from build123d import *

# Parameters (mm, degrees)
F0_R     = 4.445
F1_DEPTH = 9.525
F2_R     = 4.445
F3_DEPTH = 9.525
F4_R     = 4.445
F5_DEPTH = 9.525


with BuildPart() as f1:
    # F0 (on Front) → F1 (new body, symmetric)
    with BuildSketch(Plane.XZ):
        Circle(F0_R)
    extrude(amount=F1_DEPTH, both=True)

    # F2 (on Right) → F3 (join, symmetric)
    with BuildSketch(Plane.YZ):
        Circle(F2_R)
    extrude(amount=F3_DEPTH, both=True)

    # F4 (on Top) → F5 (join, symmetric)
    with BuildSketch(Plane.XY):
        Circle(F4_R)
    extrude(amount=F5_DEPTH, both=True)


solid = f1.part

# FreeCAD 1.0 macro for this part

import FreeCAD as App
import Part
import Sketcher
from FreeCAD import Vector
Q = App.Units.Quantity

doc = App.newDocument("Part")
body = doc.addObject("PartDesign::Body", "Body")

# Sketch on XZ plane
sketch1 = body.newObject("Sketcher::SketchObject", "Sketch")
sketch1.AttachmentSupport = (doc.getObject("XZ_Plane"), [""])
sketch1.MapMode = "FlatFace"
sketch1.addGeometry(Part.Circle(Vector(0, 0, 0), Vector(0, 0, 1), 4.4), False)
sketch1.addConstraint([
    Sketcher.Constraint("Coincident", 0, 3, -1, 1),
    Sketcher.Constraint("Diameter", 0, Q("0.35 in")),
])
pad1 = body.newObject("PartDesign::Pad", "Pad")
pad1.Profile = sketch1
pad1.Length = Q("0.75 in")
pad1.Midplane = True

# Sketch on YZ plane
sketch2 = body.newObject("Sketcher::SketchObject", "Sketch001")
sketch2.AttachmentSupport = (doc.getObject("YZ_Plane"), [""])
sketch2.MapMode = "FlatFace"
sketch2.addGeometry(Part.Circle(Vector(0, 0, 0), Vector(0, 0, 1), 4.4), False)
sketch2.addConstraint([
    Sketcher.Constraint("Coincident", 0, 3, -1, 1),
    Sketcher.Constraint("Diameter", 0, Q("0.35 in")),
])
pad2 = body.newObject("PartDesign::Pad", "Pad001")
pad2.Profile = sketch2
pad2.Length = Q("0.75 in")
pad2.Midplane = True

# Sketch on XY plane
sketch3 = body.newObject("Sketcher::SketchObject", "Sketch002")
sketch3.AttachmentSupport = (doc.getObject("XY_Plane"), [""])
sketch3.MapMode = "FlatFace"
sketch3.addGeometry(Part.Circle(Vector(0, 0, 0), Vector(0, 0, 1), 4.4), False)
sketch3.addConstraint([
    Sketcher.Constraint("Coincident", 0, 3, -1, 1),
    Sketcher.Constraint("Diameter", 0, Q("0.35 in")),
])
pad3 = body.newObject("PartDesign::Pad", "Pad002")
pad3.Profile = sketch3
pad3.Length = Q("0.75 in")
pad3.Midplane = True

doc.recompute()
